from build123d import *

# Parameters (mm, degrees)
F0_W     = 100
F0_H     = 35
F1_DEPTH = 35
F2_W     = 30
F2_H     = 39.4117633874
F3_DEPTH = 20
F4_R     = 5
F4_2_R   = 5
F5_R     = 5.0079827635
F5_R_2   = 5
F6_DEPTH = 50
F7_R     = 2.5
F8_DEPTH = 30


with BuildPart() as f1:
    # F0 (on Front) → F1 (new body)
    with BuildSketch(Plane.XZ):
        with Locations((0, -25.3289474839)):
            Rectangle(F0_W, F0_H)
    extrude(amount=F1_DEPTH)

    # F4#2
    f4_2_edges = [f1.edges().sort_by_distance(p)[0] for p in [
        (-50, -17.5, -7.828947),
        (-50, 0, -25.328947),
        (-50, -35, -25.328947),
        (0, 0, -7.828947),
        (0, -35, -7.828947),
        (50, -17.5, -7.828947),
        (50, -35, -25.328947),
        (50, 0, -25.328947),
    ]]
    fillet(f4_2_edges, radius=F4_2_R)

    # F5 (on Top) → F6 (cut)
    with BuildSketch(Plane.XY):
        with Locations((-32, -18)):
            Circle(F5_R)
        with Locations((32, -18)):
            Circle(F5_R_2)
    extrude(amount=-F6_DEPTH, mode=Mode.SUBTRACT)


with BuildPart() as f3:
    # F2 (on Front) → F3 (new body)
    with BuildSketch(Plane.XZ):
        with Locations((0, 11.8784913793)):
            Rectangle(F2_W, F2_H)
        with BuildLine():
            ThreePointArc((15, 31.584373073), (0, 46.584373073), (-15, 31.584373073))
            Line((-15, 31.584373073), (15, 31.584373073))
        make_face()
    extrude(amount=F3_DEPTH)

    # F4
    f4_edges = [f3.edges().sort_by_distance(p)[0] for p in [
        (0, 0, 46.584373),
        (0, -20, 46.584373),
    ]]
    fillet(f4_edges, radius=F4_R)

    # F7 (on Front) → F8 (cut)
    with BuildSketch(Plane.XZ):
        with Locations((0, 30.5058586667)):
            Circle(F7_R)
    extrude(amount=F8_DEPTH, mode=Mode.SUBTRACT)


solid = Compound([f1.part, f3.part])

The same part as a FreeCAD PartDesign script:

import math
import FreeCAD as App
import Part
import Sketcher

V = App.Vector
Q = App.Units.Quantity


def edges_at(feature, points):
    """Names of the edges that pass closest to the given points."""
    edges = feature.Shape.Edges
    near = lambda p: min(range(len(edges)), key=lambda i: edges[i].distToShape(Part.Vertex(*p))[0])
    return sorted({f"Edge{near(p) + 1}" for p in points})

doc = App.newDocument("Part")
body = doc.addObject("PartDesign::Body", "Body")

sketch1 = body.newObject("Sketcher::SketchObject", "Sketch")
sketch1.AttachmentSupport = (doc.getObject("XZ_Plane"), [""])
sketch1.MapMode = "FlatFace"
sketch1.addGeometry([
    Part.LineSegment(V(-50, -8, 0), V(-50, -43, 0)),
    Part.LineSegment(V(-50, -43, 0), V(50, -43, 0)),
    Part.LineSegment(V(50, -43, 0), V(50, -8, 0)),
    Part.LineSegment(V(50, -8, 0), V(-50, -8, 0)),
], False)
sketch1.addConstraint([
    Sketcher.Constraint("Coincident", 0, 2, 1, 1),
    Sketcher.Constraint("Coincident", 1, 2, 2, 1),
    Sketcher.Constraint("Coincident", 2, 2, 3, 1),
    Sketcher.Constraint("Coincident", 3, 2, 0, 1),
    Sketcher.Constraint("Vertical", 0),
    Sketcher.Constraint("Horizontal", 1),
    Sketcher.Constraint("Vertical", 2),
    Sketcher.Constraint("Horizontal", 3),
    Sketcher.Constraint("DistanceX", 1, 1, 1, 2, Q("100 mm")),
    Sketcher.Constraint("DistanceY", 0, 2, 0, 1, Q("35 mm")),
    Sketcher.Constraint("DistanceX", 0, 2, -1, 1, Q("50 mm")),
    Sketcher.Constraint("DistanceY", 0, 2, -1, 1, Q("42.828947 mm")),
])
pad1 = body.newObject("PartDesign::Pad", "Pad")
pad1.Profile = sketch1
pad1.Length = 35
doc.recompute()

fillet = body.newObject("PartDesign::Fillet", "Fillet")
fillet.Base = (pad1, edges_at(pad1, [
    (-50, -17.5, -7.829),
    (-50, 0, -25.329),
    (-50, -35, -25.329),
    (0, 0, -7.829),
    (0, -35, -7.829),
    (50, -17.5, -7.829),
    (50, -35, -25.329),
    (50, 0, -25.329),
]))
fillet.Radius = 5

sketch2 = body.newObject("Sketcher::SketchObject", "Sketch001")
sketch2.AttachmentSupport = (doc.getObject("XY_Plane"), [""])
sketch2.MapMode = "FlatFace"
sketch2.addGeometry([
    Part.Circle(V(-32, -18, 0), V(0, 0, 1), 5),
    Part.Circle(V(32, -18, 0), V(0, 0, 1), 5),
], False)
sketch2.addConstraint([
    Sketcher.Constraint("Symmetric", 0, 3, 1, 3, -2),
    Sketcher.Constraint("Diameter", 1, Q("10 mm")),
    Sketcher.Constraint("DistanceX", 0, 3, -1, 1, Q("32 mm")),
    Sketcher.Constraint("DistanceY", 0, 3, -1, 1, Q("18 mm")),
    Sketcher.Constraint("Diameter", 0, Q("10.015966 mm")),
])
pocket1 = body.newObject("PartDesign::Pocket", "Pocket")
pocket1.Profile = sketch2
pocket1.Length = 50
body2 = doc.addObject("PartDesign::Body", "Body001")

sketch3 = body2.newObject("Sketcher::SketchObject", "Sketch002")
sketch3.AttachmentSupport = (doc.getObject("XZ_Plane001"), [""])
sketch3.MapMode = "FlatFace"
sketch3.addGeometry([
    Part.LineSegment(V(-15, 32, 0), V(-15, -8, 0)),
    Part.LineSegment(V(-15, -8, 0), V(15, -8, 0)),
    Part.LineSegment(V(15, -8, 0), V(15, 32, 0)),
    Part.ArcOfCircle(Part.Circle(V(0, 32, 0), V(0, 0, 1), 15), math.radians(0), math.radians(180)),
], False)
sketch3.addConstraint([
    Sketcher.Constraint("Coincident", 0, 2, 1, 1),
    Sketcher.Constraint("Coincident", 1, 2, 2, 1),
    Sketcher.Constraint("Tangent", 2, 2, 3, 1),
    Sketcher.Constraint("Tangent", 3, 2, 0, 1),
    Sketcher.Constraint("Vertical", 0),
    Sketcher.Constraint("Horizontal", 1),
    Sketcher.Constraint("Vertical", 2),
    Sketcher.Constraint("PointOnObject", 3, 3, -2),
    Sketcher.Constraint("Radius", 3, Q("15 mm")),
    Sketcher.Constraint("DistanceY", 0, 2, 0, 1, Q("39.411763 mm")),
    Sketcher.Constraint("DistanceY", 0, 2, -1, 1, Q("7.82739 mm")),
])
pad2 = body2.newObject("PartDesign::Pad", "Pad001")
pad2.Profile = sketch3
pad2.Length = 20
doc.recompute()

fillet2 = body2.newObject("PartDesign::Fillet", "Fillet001")
fillet2.Base = (pad2, edges_at(pad2, [(0, 0, 46.584), (0, -20, 46.584)]))
fillet2.Radius = 5

sketch4 = body2.newObject("Sketcher::SketchObject", "Sketch003")
sketch4.AttachmentSupport = (doc.getObject("XZ_Plane001"), [""])
sketch4.MapMode = "FlatFace"
sketch4.addGeometry(Part.Circle(V(0, 30.5, 0), V(0, 0, 1), 2.5), False)
sketch4.addConstraint([
    Sketcher.Constraint("PointOnObject", 0, 3, -2),
    Sketcher.Constraint("Diameter", 0, Q("5 mm")),
    Sketcher.Constraint("DistanceY", -1, 1, 0, 3, Q("30.505859 mm")),
])
pocket2 = body2.newObject("PartDesign::Pocket", "Pocket001")
pocket2.Profile = sketch4
pocket2.Length = 30
pocket2.Reversed = True

doc.recompute()
